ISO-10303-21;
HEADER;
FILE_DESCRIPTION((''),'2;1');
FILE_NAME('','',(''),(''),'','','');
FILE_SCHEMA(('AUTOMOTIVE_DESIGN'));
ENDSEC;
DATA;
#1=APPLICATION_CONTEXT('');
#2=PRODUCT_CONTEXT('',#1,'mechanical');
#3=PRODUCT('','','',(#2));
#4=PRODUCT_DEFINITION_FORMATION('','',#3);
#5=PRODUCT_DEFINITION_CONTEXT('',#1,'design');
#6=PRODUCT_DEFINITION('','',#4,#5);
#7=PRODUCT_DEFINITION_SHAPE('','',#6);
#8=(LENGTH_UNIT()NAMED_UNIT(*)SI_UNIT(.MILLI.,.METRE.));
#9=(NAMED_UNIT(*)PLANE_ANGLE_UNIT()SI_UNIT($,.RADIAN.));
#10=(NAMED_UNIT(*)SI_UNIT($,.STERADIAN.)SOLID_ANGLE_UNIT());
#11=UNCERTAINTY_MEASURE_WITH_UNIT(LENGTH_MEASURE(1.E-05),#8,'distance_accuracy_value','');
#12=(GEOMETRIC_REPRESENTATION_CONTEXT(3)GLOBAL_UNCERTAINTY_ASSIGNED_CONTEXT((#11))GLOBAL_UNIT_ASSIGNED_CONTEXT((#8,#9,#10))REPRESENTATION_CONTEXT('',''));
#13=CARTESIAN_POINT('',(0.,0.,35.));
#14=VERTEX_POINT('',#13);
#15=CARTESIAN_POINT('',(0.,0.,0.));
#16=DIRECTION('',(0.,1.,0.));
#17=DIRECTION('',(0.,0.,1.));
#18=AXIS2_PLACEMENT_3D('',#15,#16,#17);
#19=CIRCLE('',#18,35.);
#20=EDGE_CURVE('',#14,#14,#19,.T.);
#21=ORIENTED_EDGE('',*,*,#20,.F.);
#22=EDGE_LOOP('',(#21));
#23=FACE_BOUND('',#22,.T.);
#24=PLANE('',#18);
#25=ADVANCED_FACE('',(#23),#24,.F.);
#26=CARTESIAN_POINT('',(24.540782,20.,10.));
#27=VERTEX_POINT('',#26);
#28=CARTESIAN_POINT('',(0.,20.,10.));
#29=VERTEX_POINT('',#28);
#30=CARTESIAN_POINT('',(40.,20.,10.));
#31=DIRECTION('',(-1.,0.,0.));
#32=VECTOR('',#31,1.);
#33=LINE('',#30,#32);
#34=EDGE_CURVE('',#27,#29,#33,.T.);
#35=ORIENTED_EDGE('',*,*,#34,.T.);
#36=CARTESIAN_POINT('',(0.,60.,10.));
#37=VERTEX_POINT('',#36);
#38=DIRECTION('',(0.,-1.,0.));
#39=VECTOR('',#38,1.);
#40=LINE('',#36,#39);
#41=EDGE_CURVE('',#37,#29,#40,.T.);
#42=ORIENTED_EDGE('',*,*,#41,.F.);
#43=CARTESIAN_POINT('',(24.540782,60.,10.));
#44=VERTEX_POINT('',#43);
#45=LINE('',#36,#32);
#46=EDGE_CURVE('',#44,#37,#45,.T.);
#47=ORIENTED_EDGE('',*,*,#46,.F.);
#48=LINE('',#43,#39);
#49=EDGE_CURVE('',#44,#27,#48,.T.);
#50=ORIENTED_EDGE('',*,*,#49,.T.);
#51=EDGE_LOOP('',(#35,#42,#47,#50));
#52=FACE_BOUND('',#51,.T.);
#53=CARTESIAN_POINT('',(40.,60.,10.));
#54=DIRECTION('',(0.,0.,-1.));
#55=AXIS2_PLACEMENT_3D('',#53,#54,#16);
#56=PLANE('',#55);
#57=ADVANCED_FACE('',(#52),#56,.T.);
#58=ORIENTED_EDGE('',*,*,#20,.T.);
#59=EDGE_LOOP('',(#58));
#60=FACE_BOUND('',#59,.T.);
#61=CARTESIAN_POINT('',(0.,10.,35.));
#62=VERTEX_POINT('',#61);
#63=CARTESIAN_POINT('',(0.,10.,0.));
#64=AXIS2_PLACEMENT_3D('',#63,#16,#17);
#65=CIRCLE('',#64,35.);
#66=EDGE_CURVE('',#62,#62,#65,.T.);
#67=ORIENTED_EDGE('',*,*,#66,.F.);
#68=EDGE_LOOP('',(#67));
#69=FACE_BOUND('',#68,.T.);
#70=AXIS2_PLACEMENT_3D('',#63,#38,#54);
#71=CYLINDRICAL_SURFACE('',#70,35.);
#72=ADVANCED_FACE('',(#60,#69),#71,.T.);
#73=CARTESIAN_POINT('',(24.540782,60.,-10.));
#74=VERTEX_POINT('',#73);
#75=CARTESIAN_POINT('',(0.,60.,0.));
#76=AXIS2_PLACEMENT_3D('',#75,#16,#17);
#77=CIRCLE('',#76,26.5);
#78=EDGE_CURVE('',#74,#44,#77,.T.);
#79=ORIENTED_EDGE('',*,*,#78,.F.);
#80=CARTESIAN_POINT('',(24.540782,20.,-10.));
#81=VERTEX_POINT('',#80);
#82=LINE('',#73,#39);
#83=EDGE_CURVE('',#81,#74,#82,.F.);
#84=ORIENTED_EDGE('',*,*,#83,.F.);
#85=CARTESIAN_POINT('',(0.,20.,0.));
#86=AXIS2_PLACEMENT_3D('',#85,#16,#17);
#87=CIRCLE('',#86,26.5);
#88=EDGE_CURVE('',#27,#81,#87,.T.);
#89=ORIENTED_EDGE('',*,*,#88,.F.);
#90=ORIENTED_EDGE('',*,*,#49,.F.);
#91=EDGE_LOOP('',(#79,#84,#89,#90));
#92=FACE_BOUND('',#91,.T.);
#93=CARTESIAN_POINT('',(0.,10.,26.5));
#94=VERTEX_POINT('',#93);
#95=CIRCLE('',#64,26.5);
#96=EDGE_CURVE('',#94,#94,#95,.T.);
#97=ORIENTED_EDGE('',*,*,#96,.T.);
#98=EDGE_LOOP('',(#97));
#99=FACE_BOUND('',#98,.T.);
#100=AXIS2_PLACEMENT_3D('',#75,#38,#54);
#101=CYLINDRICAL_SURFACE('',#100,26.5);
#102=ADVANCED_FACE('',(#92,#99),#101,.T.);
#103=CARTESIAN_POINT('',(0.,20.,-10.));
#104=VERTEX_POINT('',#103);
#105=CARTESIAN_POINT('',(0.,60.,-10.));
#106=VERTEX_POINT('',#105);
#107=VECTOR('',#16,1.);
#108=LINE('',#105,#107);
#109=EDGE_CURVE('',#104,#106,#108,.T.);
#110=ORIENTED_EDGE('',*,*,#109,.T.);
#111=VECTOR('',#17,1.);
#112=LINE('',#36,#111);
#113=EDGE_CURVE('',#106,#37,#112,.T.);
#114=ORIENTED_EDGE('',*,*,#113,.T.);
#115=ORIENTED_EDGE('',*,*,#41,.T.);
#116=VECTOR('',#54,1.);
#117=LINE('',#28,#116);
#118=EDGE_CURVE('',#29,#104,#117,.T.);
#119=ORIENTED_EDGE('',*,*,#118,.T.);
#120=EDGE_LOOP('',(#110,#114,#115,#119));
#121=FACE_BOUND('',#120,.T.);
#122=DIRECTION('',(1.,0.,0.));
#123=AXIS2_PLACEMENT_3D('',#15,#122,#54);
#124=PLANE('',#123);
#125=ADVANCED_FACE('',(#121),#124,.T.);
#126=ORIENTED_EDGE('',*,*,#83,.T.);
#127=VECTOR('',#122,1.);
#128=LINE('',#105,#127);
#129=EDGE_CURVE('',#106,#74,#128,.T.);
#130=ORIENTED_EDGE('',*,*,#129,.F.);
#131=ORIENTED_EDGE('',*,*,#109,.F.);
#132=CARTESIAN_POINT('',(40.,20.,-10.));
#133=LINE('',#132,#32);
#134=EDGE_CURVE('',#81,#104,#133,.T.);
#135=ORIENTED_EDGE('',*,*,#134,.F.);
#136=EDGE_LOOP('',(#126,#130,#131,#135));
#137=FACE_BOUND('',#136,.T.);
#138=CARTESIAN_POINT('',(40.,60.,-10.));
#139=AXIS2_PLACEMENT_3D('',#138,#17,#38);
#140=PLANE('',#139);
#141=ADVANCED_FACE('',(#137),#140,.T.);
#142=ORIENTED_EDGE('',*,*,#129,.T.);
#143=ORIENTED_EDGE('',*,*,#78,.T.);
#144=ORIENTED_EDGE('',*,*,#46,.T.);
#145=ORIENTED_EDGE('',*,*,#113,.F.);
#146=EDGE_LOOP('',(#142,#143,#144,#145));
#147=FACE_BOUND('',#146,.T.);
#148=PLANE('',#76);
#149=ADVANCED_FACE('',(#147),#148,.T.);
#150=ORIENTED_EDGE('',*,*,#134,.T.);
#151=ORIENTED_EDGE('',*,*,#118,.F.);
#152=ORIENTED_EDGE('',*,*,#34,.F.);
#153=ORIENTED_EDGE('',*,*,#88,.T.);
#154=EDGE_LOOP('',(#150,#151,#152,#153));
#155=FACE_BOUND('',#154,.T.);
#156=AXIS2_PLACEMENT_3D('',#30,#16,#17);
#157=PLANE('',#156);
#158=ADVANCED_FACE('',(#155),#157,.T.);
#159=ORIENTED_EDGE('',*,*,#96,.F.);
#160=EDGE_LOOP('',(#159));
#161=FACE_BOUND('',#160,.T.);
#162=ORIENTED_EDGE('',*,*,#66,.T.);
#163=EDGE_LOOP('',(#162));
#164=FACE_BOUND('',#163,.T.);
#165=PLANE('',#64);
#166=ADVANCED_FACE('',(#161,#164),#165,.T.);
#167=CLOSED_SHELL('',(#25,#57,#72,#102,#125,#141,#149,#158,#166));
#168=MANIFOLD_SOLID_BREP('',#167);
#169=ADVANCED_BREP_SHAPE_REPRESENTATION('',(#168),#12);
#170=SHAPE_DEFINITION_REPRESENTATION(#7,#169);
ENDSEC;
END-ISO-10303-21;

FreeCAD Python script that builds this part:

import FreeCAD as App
import Part
import Sketcher
Q = App.Units.Quantity

doc = App.newDocument("Part")
params = doc.addObject("Spreadsheet::Sheet", "Params")
for row, (alias, value) in enumerate([
    ("sketch1_diameter", "70 mm"),
    ("pad1_length", "10 mm"),
    ("sketch2_diameter", "53 mm"),
    ("pad2_length", "50 mm"),
    ("sketch3_width", "40 mm"),
    ("sketch3_height", "20 mm"),
    ("pocket1_length", "40 mm"),
], start=1):
    params.set(f"A{row}", alias)
    params.set(f"B{row}", "=" + value)
    params.setAlias(f"B{row}", alias)

body = doc.addObject("PartDesign::Body", "Body")

sketch1 = body.newObject("Sketcher::SketchObject", "Sketch")
sketch1.AttachmentSupport = (doc.getObject("XZ_Plane"), [""])
sketch1.MapMode = "FlatFace"
sketch1.addGeometry(Part.Circle(App.Vector(0, 0, 0), App.Vector(0, 0, 1), 35), False)
sketch1.addConstraint(Sketcher.Constraint("Coincident", 0, 3, -1, 1))
sketch1.addConstraint(Sketcher.Constraint("Diameter", 0, Q("70 mm")))
sketch1.setExpression("Constraints[1]", "Params.sketch1_diameter")
pad1 = body.newObject("PartDesign::Pad", "Pad")
pad1.Profile = sketch1
pad1.setExpression("Length", "Params.pad1_length")
pad1.Reversed = True

sketch2 = body.newObject("Sketcher::SketchObject", "Sketch001")
sketch2.AttachmentSupport = (doc.getObject("XZ_Plane"), [""])
sketch2.MapMode = "FlatFace"
sketch2.AttachmentOffset = App.Placement(App.Vector(0, 0, -10), App.Rotation())
sketch2.addGeometry(Part.Circle(App.Vector(0, 0, 0), App.Vector(0, 0, 1), 26), False)
sketch2.addConstraint(Sketcher.Constraint("Coincident", 0, 3, -1, 1))
sketch2.addConstraint(Sketcher.Constraint("Diameter", 0, Q("53 mm")))
sketch2.setExpression("Constraints[1]", "Params.sketch2_diameter")
pad2 = body.newObject("PartDesign::Pad", "Pad001")
pad2.Profile = sketch2
pad2.setExpression("Length", "Params.pad2_length")
pad2.Reversed = True

sketch3 = body.newObject("Sketcher::SketchObject", "Sketch002")
sketch3.AttachmentSupport = (doc.getObject("YZ_Plane"), [""])
sketch3.MapMode = "FlatFace"
sketch3.addGeometry(Part.LineSegment(App.Vector(60, 10, 0), App.Vector(20, 10, 0)), False)
sketch3.addGeometry(Part.LineSegment(App.Vector(20, 10, 0), App.Vector(20, -10, 0)), False)
sketch3.addGeometry(Part.LineSegment(App.Vector(20, -10, 0), App.Vector(60, -10, 0)), False)
sketch3.addGeometry(Part.LineSegment(App.Vector(60, -10, 0), App.Vector(60, 10, 0)), False)
sketch3.addConstraint(Sketcher.Constraint("Coincident", 0, 2, 1, 1))
sketch3.addConstraint(Sketcher.Constraint("Coincident", 1, 2, 2, 1))
sketch3.addConstraint(Sketcher.Constraint("Coincident", 2, 2, 3, 1))
sketch3.addConstraint(Sketcher.Constraint("Coincident", 3, 2, 0, 1))
sketch3.addConstraint(Sketcher.Constraint("Horizontal", 0))
sketch3.addConstraint(Sketcher.Constraint("Vertical", 1))
sketch3.addConstraint(Sketcher.Constraint("Horizontal", 2))
sketch3.addConstraint(Sketcher.Constraint("Vertical", 3))
sketch3.addConstraint(Sketcher.Constraint("DistanceX", 0, 2, 0, 1, Q("40 mm")))
sketch3.addConstraint(Sketcher.Constraint("DistanceY", 1, 2, 1, 1, Q("20 mm")))
sketch3.addConstraint(Sketcher.Constraint("DistanceX", -1, 1, 0, 2, Q("20 mm")))
sketch3.addConstraint(Sketcher.Constraint("DistanceY", -1, 1, 0, 2, Q("10 mm")))
sketch3.setExpression("Constraints[8]", "Params.sketch3_width")
sketch3.setExpression("Constraints[9]", "Params.sketch3_height")
pocket1 = body.newObject("PartDesign::Pocket", "Pocket")
pocket1.Profile = sketch3
pocket1.setExpression("Length", "Params.pocket1_length")
pocket1.Reversed = True

doc.recompute()
